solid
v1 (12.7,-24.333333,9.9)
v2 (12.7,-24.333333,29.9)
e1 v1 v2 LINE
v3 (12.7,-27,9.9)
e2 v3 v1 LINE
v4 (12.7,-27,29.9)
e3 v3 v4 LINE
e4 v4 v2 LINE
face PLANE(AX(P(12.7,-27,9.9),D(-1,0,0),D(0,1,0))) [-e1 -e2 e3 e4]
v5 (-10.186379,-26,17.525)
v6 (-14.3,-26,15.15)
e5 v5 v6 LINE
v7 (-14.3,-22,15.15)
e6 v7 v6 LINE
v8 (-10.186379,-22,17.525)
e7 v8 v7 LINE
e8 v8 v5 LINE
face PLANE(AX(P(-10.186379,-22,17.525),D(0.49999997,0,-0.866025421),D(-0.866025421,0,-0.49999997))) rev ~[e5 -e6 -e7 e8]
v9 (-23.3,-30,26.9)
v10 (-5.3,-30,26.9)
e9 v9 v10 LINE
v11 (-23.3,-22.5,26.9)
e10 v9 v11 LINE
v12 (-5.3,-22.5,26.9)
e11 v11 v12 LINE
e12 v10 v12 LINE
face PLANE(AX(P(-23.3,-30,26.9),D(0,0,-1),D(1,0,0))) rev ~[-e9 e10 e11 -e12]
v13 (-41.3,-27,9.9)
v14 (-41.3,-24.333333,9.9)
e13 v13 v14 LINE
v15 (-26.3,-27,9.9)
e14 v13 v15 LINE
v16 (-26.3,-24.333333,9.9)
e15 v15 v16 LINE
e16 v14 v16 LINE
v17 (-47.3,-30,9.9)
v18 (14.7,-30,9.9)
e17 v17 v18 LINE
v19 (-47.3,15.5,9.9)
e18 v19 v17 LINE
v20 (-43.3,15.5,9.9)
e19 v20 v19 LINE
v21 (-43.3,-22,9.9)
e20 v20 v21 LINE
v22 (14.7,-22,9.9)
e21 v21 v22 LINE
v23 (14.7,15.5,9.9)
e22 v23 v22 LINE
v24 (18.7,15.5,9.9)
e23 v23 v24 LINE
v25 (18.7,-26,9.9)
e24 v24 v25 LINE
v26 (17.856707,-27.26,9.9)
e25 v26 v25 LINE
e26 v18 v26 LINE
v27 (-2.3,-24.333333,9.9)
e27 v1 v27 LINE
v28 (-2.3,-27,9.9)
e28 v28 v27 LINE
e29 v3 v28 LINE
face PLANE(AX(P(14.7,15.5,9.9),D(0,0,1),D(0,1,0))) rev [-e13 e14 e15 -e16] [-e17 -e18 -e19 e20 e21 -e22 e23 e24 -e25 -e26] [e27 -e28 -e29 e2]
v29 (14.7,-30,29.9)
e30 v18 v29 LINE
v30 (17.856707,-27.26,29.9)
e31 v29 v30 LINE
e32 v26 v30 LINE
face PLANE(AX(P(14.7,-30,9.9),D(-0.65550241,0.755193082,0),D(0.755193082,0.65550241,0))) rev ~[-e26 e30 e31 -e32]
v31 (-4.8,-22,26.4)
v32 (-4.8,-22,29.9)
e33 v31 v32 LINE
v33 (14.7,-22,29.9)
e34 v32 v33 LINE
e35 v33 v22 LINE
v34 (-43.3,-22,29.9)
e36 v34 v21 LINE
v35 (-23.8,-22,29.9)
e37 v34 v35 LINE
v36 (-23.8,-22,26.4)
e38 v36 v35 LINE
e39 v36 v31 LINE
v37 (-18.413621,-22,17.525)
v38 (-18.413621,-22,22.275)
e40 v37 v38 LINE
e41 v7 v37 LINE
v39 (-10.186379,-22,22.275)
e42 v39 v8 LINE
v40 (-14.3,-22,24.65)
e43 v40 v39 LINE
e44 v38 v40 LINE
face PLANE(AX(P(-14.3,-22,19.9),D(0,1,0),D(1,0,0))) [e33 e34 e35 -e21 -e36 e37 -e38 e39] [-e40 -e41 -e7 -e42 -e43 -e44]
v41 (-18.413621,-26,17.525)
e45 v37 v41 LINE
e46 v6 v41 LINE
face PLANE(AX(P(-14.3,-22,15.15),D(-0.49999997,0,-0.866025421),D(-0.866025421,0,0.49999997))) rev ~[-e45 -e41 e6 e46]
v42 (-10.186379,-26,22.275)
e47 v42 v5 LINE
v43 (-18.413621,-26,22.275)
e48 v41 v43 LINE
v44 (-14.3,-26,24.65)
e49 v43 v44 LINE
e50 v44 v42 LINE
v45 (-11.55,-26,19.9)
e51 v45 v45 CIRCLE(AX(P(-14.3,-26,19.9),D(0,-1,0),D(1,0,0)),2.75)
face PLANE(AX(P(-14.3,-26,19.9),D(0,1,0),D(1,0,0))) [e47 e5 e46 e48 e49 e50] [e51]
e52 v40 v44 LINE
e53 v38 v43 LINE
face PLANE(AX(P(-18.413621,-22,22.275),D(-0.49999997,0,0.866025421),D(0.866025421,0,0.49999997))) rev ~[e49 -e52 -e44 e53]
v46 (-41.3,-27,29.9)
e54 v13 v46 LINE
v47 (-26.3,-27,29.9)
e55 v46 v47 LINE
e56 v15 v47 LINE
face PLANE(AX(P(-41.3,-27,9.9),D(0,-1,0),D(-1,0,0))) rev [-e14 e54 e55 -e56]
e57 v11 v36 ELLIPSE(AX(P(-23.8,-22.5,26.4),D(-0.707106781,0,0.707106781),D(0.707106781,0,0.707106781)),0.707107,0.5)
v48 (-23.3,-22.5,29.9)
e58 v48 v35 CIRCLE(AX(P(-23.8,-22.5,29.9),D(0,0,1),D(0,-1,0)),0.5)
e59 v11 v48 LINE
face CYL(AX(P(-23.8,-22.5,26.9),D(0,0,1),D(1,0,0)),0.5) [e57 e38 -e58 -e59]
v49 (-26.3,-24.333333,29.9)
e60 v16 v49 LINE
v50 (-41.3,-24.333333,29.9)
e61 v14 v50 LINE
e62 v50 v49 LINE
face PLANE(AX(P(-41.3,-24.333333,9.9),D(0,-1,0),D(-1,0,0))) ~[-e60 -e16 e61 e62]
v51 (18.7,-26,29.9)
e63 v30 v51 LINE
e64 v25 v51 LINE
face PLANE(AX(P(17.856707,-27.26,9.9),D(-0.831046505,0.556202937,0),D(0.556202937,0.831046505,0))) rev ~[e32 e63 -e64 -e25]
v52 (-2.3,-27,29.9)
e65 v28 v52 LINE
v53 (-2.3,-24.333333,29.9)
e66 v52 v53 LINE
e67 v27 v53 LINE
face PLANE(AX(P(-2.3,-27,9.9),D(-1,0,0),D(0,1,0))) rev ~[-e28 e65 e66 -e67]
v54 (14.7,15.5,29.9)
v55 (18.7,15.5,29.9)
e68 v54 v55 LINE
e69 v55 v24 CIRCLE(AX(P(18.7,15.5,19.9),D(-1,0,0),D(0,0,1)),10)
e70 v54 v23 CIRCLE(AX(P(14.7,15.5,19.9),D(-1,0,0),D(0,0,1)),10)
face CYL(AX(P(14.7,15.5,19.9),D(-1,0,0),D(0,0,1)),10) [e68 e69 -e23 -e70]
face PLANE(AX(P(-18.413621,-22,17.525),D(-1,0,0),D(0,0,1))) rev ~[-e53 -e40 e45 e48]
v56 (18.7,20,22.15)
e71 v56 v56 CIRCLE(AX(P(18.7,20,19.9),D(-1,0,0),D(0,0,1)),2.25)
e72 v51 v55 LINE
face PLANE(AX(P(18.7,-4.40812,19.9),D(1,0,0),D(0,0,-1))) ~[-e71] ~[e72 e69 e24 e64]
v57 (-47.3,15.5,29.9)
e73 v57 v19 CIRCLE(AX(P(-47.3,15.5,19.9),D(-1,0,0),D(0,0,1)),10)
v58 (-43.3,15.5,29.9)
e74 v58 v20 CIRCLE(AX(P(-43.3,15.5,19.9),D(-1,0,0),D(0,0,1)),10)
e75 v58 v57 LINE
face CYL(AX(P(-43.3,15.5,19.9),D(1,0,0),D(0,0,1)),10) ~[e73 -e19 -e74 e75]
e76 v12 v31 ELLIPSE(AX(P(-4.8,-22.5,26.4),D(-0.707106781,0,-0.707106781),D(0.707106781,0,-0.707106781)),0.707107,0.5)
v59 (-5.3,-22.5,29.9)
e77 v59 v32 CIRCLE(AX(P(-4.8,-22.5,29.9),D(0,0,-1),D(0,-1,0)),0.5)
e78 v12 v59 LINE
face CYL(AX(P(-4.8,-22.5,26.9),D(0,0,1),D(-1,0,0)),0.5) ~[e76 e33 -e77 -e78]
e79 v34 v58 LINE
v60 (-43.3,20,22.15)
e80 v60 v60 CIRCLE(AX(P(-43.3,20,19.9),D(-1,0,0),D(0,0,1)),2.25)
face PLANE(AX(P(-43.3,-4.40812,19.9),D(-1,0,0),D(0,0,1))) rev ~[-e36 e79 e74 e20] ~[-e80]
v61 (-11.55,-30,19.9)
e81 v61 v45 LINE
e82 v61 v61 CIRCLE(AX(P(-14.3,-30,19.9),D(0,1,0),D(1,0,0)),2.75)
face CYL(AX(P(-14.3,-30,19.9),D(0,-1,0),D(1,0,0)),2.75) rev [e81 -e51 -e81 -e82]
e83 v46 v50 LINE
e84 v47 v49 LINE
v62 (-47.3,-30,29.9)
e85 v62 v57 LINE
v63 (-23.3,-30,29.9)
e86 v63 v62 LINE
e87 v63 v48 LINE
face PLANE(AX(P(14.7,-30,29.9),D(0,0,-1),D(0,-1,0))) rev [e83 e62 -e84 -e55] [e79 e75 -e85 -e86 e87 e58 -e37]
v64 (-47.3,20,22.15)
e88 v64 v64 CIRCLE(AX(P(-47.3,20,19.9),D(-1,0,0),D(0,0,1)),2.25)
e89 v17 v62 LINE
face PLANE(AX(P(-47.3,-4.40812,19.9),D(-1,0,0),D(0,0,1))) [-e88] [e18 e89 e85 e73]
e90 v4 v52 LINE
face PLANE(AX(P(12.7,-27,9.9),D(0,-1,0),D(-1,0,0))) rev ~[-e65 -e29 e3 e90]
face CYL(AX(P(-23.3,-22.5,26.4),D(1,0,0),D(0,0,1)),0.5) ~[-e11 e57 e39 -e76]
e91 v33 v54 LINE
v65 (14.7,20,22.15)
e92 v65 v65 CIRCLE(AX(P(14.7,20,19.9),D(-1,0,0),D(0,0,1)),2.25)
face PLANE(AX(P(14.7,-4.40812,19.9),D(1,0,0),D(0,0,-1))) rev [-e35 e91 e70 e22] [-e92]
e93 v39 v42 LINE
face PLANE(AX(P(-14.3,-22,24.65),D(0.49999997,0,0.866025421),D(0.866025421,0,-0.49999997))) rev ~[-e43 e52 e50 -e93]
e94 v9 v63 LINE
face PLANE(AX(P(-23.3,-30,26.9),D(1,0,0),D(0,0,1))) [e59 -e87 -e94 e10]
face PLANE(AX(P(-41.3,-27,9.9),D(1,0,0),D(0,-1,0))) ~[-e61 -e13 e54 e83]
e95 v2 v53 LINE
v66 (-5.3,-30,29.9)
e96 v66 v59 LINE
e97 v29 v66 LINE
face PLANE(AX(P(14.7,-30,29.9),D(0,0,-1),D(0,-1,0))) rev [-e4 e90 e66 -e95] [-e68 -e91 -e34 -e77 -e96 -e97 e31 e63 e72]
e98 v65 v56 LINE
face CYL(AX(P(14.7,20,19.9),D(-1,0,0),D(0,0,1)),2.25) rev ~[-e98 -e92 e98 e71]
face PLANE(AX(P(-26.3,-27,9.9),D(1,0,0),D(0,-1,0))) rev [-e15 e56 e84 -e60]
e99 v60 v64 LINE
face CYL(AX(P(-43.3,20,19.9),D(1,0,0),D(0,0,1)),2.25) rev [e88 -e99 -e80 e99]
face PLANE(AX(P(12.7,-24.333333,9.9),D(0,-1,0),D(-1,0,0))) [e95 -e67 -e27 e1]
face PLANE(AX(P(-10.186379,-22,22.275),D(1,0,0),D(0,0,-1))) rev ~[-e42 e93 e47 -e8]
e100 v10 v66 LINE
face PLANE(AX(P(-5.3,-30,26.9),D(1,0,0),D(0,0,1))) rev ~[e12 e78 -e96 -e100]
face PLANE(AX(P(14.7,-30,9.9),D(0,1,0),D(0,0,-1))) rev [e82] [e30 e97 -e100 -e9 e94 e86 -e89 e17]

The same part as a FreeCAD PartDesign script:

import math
import FreeCAD as App
import Part
import Sketcher

V = App.Vector
Q = App.Units.Quantity


def edges_at(feature, points):
    """Names of the edges that pass closest to the given points."""
    edges = feature.Shape.Edges
    near = lambda p: min(range(len(edges)), key=lambda i: edges[i].distToShape(Part.Vertex(*p))[0])
    return sorted({f"Edge{near(p) + 1}" for p in points})

doc = App.newDocument("Part")
body = doc.addObject("PartDesign::Body", "Body")

# Sketch on XZ plane
sketch1 = doc.addObject("Sketcher::SketchObject", "Sketch")
body.addObject(sketch1)
sketch1.AttachmentSupport = (doc.XZ_Plane, [""])
sketch1.MapMode = "FlatFace"
sketch1.addGeometry(Part.LineSegment(V(-29, 10, 0), V(-29, -10, 0)), False)
sketch1.addGeometry(Part.LineSegment(V(-29, -10, 0), V(29, -10, 0)), False)
sketch1.addGeometry(Part.LineSegment(V(29, -10, 0), V(29, 10, 0)), False)
sketch1.addGeometry(Part.LineSegment(V(29, 10, 0), V(-29, 10, 0)), False)
sketch1.addGeometry(Part.Circle(V(0, 0, 0), V(0, 0, 1), 2.8), False)
sketch1.addConstraint(Sketcher.Constraint("Coincident", 0, 2, 1, 1))
sketch1.addConstraint(Sketcher.Constraint("Coincident", 1, 2, 2, 1))
sketch1.addConstraint(Sketcher.Constraint("Coincident", 2, 2, 3, 1))
sketch1.addConstraint(Sketcher.Constraint("Coincident", 3, 2, 0, 1))
sketch1.addConstraint(Sketcher.Constraint("Vertical", 0))
sketch1.addConstraint(Sketcher.Constraint("Horizontal", 1))
sketch1.addConstraint(Sketcher.Constraint("Vertical", 2))
sketch1.addConstraint(Sketcher.Constraint("Horizontal", 3))
sketch1.addConstraint(Sketcher.Constraint("Coincident", 4, 3, -1, 1))
sketch1.addConstraint(Sketcher.Constraint("Symmetric", 0, 2, 2, 2, -1, 1))
sketch1.addConstraint(Sketcher.Constraint("Diameter", 4, 5.5))
sketch1.addConstraint(Sketcher.Constraint("DistanceX", 1, 1, 1, 2, 58.0))
sketch1.addConstraint(Sketcher.Constraint("DistanceY", 0, 2, 0, 1, 20.0))
pad1 = doc.addObject("PartDesign::Pad", "Pad")
body.addObject(pad1)
pad1.Profile = sketch1
pad1.Length = 8

# Sketch on YZ plane
sketch2 = doc.addObject("Sketcher::SketchObject", "Sketch001")
body.addObject(sketch2)
sketch2.AttachmentSupport = (doc.YZ_Plane, [""])
sketch2.MapMode = "FlatFace"
sketch2.AttachmentOffset = App.Placement(V(0, 0, -29), App.Rotation())
sketch2.addGeometry(Part.LineSegment(V(0, 10, 0), V(0, -10, 0)), False)
sketch2.addGeometry(Part.LineSegment(V(0, -10, 0), V(-45.5, -10, 0)), False)
sketch2.addGeometry(Part.ArcOfCircle(Part.Circle(V(-45.5, 0, 0), V(0, 0, 1), 10), math.radians(90), math.radians(270)), False)
sketch2.addGeometry(Part.LineSegment(V(-45.5, 10, 0), V(0, 10, 0)), False)
sketch2.addGeometry(Part.Circle(V(-50, 0, 0), V(0, 0, 1), 2.2), False)
sketch2.addConstraint(Sketcher.Constraint("Coincident", 0, 2, 1, 1))
sketch2.addConstraint(Sketcher.Constraint("Tangent", 1, 2, 2, 2))
sketch2.addConstraint(Sketcher.Constraint("Tangent", 2, 1, 3, 1))
sketch2.addConstraint(Sketcher.Constraint("Coincident", 3, 2, 0, 1))
sketch2.addConstraint(Sketcher.Constraint("Vertical", 0))
sketch2.addConstraint(Sketcher.Constraint("Horizontal", 1))
sketch2.addConstraint(Sketcher.Constraint("Horizontal", 3))
sketch2.addConstraint(Sketcher.Constraint("Symmetric", 0, 2, 3, 2, -1, 1))
sketch2.addConstraint(Sketcher.Constraint("PointOnObject", 4, 3, -1))
sketch2.addConstraint(Sketcher.Constraint("Radius", 2, 10.0))
sketch2.addConstraint(Sketcher.Constraint("Diameter", 4, 4.5))
sketch2.addConstraint(Sketcher.Constraint("DistanceX", 1, 2, 1, 1, 45.5))
sketch2.addConstraint(Sketcher.Constraint("DistanceX", 4, 3, -1, 1, 50.0))
pad2 = doc.addObject("PartDesign::Pad", "Pad001")
body.addObject(pad2)
pad2.Profile = sketch2
pad2.Length = 4
pad2.Reversed = True
doc.recompute()

mirrored = doc.addObject("PartDesign::Mirrored", "Mirrored")
body.addObject(mirrored)
mirrored.Originals = [pad2]
mirrored.MirrorPlane = (doc.YZ_Plane, [""])
body.Tip = mirrored

# Sketch on XZ plane
sketch3 = doc.addObject("Sketcher::SketchObject", "Sketch002")
body.addObject(sketch3)
sketch3.AttachmentSupport = (doc.XZ_Plane, [""])
sketch3.MapMode = "FlatFace"
sketch3.AttachmentOffset = App.Placement(V(0, 0, 8), App.Rotation())
sketch3.addGeometry(Part.LineSegment(V(4.1, 2.4, 0), V(0, 4.8, 0)), False)
sketch3.addGeometry(Part.LineSegment(V(0, 4.8, 0), V(-4.1, 2.4, 0)), False)
sketch3.addGeometry(Part.LineSegment(V(-4.1, 2.4, 0), V(-4.1, -2.4, 0)), False)
sketch3.addGeometry(Part.LineSegment(V(-4.1, -2.4, 0), V(0, -4.8, 0)), False)
sketch3.addGeometry(Part.LineSegment(V(0, -4.8, 0), V(4.1, -2.4, 0)), False)
sketch3.addGeometry(Part.LineSegment(V(4.1, -2.4, 0), V(4.1, 2.4, 0)), False)
sketch3.addConstraint(Sketcher.Constraint("Coincident", 0, 2, 1, 1))
sketch3.addConstraint(Sketcher.Constraint("Coincident", 1, 2, 2, 1))
sketch3.addConstraint(Sketcher.Constraint("Coincident", 2, 2, 3, 1))
sketch3.addConstraint(Sketcher.Constraint("Coincident", 3, 2, 4, 1))
sketch3.addConstraint(Sketcher.Constraint("Coincident", 4, 2, 5, 1))
sketch3.addConstraint(Sketcher.Constraint("Coincident", 5, 2, 0, 1))
sketch3.addConstraint(Sketcher.Constraint("Vertical", 2))
sketch3.addConstraint(Sketcher.Constraint("Vertical", 5))
sketch3.addConstraint(Sketcher.Constraint("Symmetric", 0, 2, 3, 2, -1, 1))
sketch3.addConstraint(Sketcher.Constraint("Symmetric", 1, 2, 4, 2, -1, 1))
sketch3.addConstraint(Sketcher.Constraint("PointOnObject", 0, 2, -2))
sketch3.addConstraint(Sketcher.Constraint("Parallel", 0, 3))
sketch3.addConstraint(Sketcher.Constraint("Horizontal", 2, 2, 4, 2))
sketch3.addConstraint(Sketcher.Constraint("Angle", 0, Q("150.000002 deg")))
sketch3.addConstraint(Sketcher.Constraint("DistanceY", 2, 2, 2, 1, 4.75))
sketch3.addConstraint(Sketcher.Constraint("DistanceY", 3, 2, 0, 2, 9.5))
pocket1 = doc.addObject("PartDesign::Pocket", "Pocket")
body.addObject(pocket1)
pocket1.Profile = sketch3
pocket1.Length = 4

# Sketch on XY plane
sketch4 = doc.addObject("Sketcher::SketchObject", "Sketch003")
body.addObject(sketch4)
sketch4.AttachmentSupport = (doc.XY_Plane, [""])
sketch4.MapMode = "FlatFace"
sketch4.AttachmentOffset = App.Placement(V(0, 0, 10), App.Rotation())
sketch4.addGeometry(Part.LineSegment(V(27, -5.7, 0), V(27, -3, 0)), False)
sketch4.addGeometry(Part.LineSegment(V(27, -3, 0), V(12, -3, 0)), False)
sketch4.addGeometry(Part.LineSegment(V(12, -3, 0), V(12, -5.7, 0)), False)
sketch4.addGeometry(Part.LineSegment(V(12, -5.7, 0), V(27, -5.7, 0)), False)
sketch4.addConstraint(Sketcher.Constraint("Coincident", 0, 2, 1, 1))
sketch4.addConstraint(Sketcher.Constraint("Coincident", 1, 2, 2, 1))
sketch4.addConstraint(Sketcher.Constraint("Coincident", 2, 2, 3, 1))
sketch4.addConstraint(Sketcher.Constraint("Coincident", 3, 2, 0, 1))
sketch4.addConstraint(Sketcher.Constraint("Vertical", 0))
sketch4.addConstraint(Sketcher.Constraint("Horizontal", 1))
sketch4.addConstraint(Sketcher.Constraint("Vertical", 2))
sketch4.addConstraint(Sketcher.Constraint("Horizontal", 3))
sketch4.addConstraint(Sketcher.Constraint("DistanceX", 1, 2, 1, 1, 15.0))
sketch4.addConstraint(Sketcher.Constraint("DistanceX", -1, 1, 0, 2, 27.0))
sketch4.addConstraint(Sketcher.Constraint("DistanceY", 0, 2, -1, 1, 3.000001))
sketch4.addConstraint(Sketcher.Constraint("DistanceY", 0, 1, 0, 2, 2.666667))
pocket2 = doc.addObject("PartDesign::Pocket", "Pocket001")
body.addObject(pocket2)
pocket2.Profile = sketch4
pocket2.Length = 20
doc.recompute()

mirrored2 = doc.addObject("PartDesign::Mirrored", "Mirrored001")
body.addObject(mirrored2)
mirrored2.Originals = [pocket2]
mirrored2.MirrorPlane = (doc.YZ_Plane, [""])
body.Tip = mirrored2

# Sketch on XZ plane
sketch5 = doc.addObject("Sketcher::SketchObject", "Sketch004")
body.addObject(sketch5)
sketch5.AttachmentSupport = (doc.XZ_Plane, [""])
sketch5.MapMode = "FlatFace"
sketch5.addGeometry(Part.LineSegment(V(-9, -10, 0), V(-9, -7, 0)), False)
sketch5.addGeometry(Part.LineSegment(V(-9, -7, 0), V(9, -7, 0)), False)
sketch5.addGeometry(Part.LineSegment(V(9, -7, 0), V(9, -10, 0)), False)
sketch5.addGeometry(Part.LineSegment(V(9, -10, 0), V(-9, -10, 0)), False)
sketch5.addConstraint(Sketcher.Constraint("Coincident", 0, 2, 1, 1))
sketch5.addConstraint(Sketcher.Constraint("Coincident", 1, 2, 2, 1))
sketch5.addConstraint(Sketcher.Constraint("Coincident", 2, 2, 3, 1))
sketch5.addConstraint(Sketcher.Constraint("Coincident", 3, 2, 0, 1))
sketch5.addConstraint(Sketcher.Constraint("Vertical", 0))
sketch5.addConstraint(Sketcher.Constraint("Horizontal", 1))
sketch5.addConstraint(Sketcher.Constraint("Vertical", 2))
sketch5.addConstraint(Sketcher.Constraint("Horizontal", 3))
sketch5.addConstraint(Sketcher.Constraint("DistanceX", 1, 1, 1, 2, 18.0))
sketch5.addConstraint(Sketcher.Constraint("DistanceY", 0, 1, 0, 2, 3.0))
sketch5.addConstraint(Sketcher.Constraint("DistanceX", 0, 2, -1, 1, 9.0))
sketch5.addConstraint(Sketcher.Constraint("DistanceY", 0, 2, -1, 1, 7.0))
pocket3 = doc.addObject("PartDesign::Pocket", "Pocket002")
body.addObject(pocket3)
pocket3.Profile = sketch5
pocket3.Length = 8
pocket3.Reversed = True
doc.recompute()

fillet = doc.addObject("PartDesign::Fillet", "Fillet")
body.addObject(fillet)
fillet.Base = (pocket3, edges_at(pocket3, [(0, -8, -7), (9, -8, -8.5), (-9, -8, -8.5)]))
fillet.Radius = 0.5

# Sketch on XY plane
sketch6 = doc.addObject("Sketcher::SketchObject", "Sketch005")
body.addObject(sketch6)
sketch6.AttachmentSupport = (doc.XY_Plane, [""])
sketch6.MapMode = "FlatFace"
sketch6.AttachmentOffset = App.Placement(V(0, 0, 10), App.Rotation())
sketch6.addGeometry(Part.LineSegment(V(29, 0, 0), V(32.2, -2.7, 0)), False)
sketch6.addGeometry(Part.LineSegment(V(32.2, -2.7, 0), V(33, -4, 0)), False)
sketch6.addGeometry(Part.LineSegment(V(33, -4, 0), V(33, 0, 0)), False)
sketch6.addGeometry(Part.LineSegment(V(33, 0, 0), V(29, 0, 0)), False)
sketch6.addConstraint(Sketcher.Constraint("Coincident", 0, 2, 1, 1))
sketch6.addConstraint(Sketcher.Constraint("Coincident", 1, 2, 2, 1))
sketch6.addConstraint(Sketcher.Constraint("Coincident", 2, 2, 3, 1))
sketch6.addConstraint(Sketcher.Constraint("Coincident", 3, 2, 0, 1))
sketch6.addConstraint(Sketcher.Constraint("Vertical", 2))
sketch6.addConstraint(Sketcher.Constraint("Horizontal", 3))
sketch6.addConstraint(Sketcher.Constraint("PointOnObject", 2, 2, -1))
sketch6.addConstraint(Sketcher.Constraint("Equal", 3, 2))
sketch6.addConstraint(Sketcher.Constraint("DistanceX", 3, 2, 3, 1, 4.0))
sketch6.addConstraint(Sketcher.Constraint("DistanceX", -1, 1, 1, 2, 33.0))
sketch6.addConstraint(Sketcher.Constraint("Distance", 0, 4.18))
sketch6.addConstraint(Sketcher.Constraint("DistanceY", 0, 2, -1, 1, 2.74))
pocket4 = doc.addObject("PartDesign::Pocket", "Pocket003")
body.addObject(pocket4)
pocket4.Profile = sketch6
pocket4.Length = 20
body2 = doc.addObject("PartDesign::Body", "Body001")
doc.recompute()

body.Placement = App.Placement(V(-14.3, -30, 19.9), App.Rotation(V(1, 0, 0), 180))
boolean = doc.addObject("PartDesign::Boolean", "Boolean")
body2.addObject(boolean)
boolean.Type = "Fuse"
boolean.addObjects([body])

doc.recompute()
